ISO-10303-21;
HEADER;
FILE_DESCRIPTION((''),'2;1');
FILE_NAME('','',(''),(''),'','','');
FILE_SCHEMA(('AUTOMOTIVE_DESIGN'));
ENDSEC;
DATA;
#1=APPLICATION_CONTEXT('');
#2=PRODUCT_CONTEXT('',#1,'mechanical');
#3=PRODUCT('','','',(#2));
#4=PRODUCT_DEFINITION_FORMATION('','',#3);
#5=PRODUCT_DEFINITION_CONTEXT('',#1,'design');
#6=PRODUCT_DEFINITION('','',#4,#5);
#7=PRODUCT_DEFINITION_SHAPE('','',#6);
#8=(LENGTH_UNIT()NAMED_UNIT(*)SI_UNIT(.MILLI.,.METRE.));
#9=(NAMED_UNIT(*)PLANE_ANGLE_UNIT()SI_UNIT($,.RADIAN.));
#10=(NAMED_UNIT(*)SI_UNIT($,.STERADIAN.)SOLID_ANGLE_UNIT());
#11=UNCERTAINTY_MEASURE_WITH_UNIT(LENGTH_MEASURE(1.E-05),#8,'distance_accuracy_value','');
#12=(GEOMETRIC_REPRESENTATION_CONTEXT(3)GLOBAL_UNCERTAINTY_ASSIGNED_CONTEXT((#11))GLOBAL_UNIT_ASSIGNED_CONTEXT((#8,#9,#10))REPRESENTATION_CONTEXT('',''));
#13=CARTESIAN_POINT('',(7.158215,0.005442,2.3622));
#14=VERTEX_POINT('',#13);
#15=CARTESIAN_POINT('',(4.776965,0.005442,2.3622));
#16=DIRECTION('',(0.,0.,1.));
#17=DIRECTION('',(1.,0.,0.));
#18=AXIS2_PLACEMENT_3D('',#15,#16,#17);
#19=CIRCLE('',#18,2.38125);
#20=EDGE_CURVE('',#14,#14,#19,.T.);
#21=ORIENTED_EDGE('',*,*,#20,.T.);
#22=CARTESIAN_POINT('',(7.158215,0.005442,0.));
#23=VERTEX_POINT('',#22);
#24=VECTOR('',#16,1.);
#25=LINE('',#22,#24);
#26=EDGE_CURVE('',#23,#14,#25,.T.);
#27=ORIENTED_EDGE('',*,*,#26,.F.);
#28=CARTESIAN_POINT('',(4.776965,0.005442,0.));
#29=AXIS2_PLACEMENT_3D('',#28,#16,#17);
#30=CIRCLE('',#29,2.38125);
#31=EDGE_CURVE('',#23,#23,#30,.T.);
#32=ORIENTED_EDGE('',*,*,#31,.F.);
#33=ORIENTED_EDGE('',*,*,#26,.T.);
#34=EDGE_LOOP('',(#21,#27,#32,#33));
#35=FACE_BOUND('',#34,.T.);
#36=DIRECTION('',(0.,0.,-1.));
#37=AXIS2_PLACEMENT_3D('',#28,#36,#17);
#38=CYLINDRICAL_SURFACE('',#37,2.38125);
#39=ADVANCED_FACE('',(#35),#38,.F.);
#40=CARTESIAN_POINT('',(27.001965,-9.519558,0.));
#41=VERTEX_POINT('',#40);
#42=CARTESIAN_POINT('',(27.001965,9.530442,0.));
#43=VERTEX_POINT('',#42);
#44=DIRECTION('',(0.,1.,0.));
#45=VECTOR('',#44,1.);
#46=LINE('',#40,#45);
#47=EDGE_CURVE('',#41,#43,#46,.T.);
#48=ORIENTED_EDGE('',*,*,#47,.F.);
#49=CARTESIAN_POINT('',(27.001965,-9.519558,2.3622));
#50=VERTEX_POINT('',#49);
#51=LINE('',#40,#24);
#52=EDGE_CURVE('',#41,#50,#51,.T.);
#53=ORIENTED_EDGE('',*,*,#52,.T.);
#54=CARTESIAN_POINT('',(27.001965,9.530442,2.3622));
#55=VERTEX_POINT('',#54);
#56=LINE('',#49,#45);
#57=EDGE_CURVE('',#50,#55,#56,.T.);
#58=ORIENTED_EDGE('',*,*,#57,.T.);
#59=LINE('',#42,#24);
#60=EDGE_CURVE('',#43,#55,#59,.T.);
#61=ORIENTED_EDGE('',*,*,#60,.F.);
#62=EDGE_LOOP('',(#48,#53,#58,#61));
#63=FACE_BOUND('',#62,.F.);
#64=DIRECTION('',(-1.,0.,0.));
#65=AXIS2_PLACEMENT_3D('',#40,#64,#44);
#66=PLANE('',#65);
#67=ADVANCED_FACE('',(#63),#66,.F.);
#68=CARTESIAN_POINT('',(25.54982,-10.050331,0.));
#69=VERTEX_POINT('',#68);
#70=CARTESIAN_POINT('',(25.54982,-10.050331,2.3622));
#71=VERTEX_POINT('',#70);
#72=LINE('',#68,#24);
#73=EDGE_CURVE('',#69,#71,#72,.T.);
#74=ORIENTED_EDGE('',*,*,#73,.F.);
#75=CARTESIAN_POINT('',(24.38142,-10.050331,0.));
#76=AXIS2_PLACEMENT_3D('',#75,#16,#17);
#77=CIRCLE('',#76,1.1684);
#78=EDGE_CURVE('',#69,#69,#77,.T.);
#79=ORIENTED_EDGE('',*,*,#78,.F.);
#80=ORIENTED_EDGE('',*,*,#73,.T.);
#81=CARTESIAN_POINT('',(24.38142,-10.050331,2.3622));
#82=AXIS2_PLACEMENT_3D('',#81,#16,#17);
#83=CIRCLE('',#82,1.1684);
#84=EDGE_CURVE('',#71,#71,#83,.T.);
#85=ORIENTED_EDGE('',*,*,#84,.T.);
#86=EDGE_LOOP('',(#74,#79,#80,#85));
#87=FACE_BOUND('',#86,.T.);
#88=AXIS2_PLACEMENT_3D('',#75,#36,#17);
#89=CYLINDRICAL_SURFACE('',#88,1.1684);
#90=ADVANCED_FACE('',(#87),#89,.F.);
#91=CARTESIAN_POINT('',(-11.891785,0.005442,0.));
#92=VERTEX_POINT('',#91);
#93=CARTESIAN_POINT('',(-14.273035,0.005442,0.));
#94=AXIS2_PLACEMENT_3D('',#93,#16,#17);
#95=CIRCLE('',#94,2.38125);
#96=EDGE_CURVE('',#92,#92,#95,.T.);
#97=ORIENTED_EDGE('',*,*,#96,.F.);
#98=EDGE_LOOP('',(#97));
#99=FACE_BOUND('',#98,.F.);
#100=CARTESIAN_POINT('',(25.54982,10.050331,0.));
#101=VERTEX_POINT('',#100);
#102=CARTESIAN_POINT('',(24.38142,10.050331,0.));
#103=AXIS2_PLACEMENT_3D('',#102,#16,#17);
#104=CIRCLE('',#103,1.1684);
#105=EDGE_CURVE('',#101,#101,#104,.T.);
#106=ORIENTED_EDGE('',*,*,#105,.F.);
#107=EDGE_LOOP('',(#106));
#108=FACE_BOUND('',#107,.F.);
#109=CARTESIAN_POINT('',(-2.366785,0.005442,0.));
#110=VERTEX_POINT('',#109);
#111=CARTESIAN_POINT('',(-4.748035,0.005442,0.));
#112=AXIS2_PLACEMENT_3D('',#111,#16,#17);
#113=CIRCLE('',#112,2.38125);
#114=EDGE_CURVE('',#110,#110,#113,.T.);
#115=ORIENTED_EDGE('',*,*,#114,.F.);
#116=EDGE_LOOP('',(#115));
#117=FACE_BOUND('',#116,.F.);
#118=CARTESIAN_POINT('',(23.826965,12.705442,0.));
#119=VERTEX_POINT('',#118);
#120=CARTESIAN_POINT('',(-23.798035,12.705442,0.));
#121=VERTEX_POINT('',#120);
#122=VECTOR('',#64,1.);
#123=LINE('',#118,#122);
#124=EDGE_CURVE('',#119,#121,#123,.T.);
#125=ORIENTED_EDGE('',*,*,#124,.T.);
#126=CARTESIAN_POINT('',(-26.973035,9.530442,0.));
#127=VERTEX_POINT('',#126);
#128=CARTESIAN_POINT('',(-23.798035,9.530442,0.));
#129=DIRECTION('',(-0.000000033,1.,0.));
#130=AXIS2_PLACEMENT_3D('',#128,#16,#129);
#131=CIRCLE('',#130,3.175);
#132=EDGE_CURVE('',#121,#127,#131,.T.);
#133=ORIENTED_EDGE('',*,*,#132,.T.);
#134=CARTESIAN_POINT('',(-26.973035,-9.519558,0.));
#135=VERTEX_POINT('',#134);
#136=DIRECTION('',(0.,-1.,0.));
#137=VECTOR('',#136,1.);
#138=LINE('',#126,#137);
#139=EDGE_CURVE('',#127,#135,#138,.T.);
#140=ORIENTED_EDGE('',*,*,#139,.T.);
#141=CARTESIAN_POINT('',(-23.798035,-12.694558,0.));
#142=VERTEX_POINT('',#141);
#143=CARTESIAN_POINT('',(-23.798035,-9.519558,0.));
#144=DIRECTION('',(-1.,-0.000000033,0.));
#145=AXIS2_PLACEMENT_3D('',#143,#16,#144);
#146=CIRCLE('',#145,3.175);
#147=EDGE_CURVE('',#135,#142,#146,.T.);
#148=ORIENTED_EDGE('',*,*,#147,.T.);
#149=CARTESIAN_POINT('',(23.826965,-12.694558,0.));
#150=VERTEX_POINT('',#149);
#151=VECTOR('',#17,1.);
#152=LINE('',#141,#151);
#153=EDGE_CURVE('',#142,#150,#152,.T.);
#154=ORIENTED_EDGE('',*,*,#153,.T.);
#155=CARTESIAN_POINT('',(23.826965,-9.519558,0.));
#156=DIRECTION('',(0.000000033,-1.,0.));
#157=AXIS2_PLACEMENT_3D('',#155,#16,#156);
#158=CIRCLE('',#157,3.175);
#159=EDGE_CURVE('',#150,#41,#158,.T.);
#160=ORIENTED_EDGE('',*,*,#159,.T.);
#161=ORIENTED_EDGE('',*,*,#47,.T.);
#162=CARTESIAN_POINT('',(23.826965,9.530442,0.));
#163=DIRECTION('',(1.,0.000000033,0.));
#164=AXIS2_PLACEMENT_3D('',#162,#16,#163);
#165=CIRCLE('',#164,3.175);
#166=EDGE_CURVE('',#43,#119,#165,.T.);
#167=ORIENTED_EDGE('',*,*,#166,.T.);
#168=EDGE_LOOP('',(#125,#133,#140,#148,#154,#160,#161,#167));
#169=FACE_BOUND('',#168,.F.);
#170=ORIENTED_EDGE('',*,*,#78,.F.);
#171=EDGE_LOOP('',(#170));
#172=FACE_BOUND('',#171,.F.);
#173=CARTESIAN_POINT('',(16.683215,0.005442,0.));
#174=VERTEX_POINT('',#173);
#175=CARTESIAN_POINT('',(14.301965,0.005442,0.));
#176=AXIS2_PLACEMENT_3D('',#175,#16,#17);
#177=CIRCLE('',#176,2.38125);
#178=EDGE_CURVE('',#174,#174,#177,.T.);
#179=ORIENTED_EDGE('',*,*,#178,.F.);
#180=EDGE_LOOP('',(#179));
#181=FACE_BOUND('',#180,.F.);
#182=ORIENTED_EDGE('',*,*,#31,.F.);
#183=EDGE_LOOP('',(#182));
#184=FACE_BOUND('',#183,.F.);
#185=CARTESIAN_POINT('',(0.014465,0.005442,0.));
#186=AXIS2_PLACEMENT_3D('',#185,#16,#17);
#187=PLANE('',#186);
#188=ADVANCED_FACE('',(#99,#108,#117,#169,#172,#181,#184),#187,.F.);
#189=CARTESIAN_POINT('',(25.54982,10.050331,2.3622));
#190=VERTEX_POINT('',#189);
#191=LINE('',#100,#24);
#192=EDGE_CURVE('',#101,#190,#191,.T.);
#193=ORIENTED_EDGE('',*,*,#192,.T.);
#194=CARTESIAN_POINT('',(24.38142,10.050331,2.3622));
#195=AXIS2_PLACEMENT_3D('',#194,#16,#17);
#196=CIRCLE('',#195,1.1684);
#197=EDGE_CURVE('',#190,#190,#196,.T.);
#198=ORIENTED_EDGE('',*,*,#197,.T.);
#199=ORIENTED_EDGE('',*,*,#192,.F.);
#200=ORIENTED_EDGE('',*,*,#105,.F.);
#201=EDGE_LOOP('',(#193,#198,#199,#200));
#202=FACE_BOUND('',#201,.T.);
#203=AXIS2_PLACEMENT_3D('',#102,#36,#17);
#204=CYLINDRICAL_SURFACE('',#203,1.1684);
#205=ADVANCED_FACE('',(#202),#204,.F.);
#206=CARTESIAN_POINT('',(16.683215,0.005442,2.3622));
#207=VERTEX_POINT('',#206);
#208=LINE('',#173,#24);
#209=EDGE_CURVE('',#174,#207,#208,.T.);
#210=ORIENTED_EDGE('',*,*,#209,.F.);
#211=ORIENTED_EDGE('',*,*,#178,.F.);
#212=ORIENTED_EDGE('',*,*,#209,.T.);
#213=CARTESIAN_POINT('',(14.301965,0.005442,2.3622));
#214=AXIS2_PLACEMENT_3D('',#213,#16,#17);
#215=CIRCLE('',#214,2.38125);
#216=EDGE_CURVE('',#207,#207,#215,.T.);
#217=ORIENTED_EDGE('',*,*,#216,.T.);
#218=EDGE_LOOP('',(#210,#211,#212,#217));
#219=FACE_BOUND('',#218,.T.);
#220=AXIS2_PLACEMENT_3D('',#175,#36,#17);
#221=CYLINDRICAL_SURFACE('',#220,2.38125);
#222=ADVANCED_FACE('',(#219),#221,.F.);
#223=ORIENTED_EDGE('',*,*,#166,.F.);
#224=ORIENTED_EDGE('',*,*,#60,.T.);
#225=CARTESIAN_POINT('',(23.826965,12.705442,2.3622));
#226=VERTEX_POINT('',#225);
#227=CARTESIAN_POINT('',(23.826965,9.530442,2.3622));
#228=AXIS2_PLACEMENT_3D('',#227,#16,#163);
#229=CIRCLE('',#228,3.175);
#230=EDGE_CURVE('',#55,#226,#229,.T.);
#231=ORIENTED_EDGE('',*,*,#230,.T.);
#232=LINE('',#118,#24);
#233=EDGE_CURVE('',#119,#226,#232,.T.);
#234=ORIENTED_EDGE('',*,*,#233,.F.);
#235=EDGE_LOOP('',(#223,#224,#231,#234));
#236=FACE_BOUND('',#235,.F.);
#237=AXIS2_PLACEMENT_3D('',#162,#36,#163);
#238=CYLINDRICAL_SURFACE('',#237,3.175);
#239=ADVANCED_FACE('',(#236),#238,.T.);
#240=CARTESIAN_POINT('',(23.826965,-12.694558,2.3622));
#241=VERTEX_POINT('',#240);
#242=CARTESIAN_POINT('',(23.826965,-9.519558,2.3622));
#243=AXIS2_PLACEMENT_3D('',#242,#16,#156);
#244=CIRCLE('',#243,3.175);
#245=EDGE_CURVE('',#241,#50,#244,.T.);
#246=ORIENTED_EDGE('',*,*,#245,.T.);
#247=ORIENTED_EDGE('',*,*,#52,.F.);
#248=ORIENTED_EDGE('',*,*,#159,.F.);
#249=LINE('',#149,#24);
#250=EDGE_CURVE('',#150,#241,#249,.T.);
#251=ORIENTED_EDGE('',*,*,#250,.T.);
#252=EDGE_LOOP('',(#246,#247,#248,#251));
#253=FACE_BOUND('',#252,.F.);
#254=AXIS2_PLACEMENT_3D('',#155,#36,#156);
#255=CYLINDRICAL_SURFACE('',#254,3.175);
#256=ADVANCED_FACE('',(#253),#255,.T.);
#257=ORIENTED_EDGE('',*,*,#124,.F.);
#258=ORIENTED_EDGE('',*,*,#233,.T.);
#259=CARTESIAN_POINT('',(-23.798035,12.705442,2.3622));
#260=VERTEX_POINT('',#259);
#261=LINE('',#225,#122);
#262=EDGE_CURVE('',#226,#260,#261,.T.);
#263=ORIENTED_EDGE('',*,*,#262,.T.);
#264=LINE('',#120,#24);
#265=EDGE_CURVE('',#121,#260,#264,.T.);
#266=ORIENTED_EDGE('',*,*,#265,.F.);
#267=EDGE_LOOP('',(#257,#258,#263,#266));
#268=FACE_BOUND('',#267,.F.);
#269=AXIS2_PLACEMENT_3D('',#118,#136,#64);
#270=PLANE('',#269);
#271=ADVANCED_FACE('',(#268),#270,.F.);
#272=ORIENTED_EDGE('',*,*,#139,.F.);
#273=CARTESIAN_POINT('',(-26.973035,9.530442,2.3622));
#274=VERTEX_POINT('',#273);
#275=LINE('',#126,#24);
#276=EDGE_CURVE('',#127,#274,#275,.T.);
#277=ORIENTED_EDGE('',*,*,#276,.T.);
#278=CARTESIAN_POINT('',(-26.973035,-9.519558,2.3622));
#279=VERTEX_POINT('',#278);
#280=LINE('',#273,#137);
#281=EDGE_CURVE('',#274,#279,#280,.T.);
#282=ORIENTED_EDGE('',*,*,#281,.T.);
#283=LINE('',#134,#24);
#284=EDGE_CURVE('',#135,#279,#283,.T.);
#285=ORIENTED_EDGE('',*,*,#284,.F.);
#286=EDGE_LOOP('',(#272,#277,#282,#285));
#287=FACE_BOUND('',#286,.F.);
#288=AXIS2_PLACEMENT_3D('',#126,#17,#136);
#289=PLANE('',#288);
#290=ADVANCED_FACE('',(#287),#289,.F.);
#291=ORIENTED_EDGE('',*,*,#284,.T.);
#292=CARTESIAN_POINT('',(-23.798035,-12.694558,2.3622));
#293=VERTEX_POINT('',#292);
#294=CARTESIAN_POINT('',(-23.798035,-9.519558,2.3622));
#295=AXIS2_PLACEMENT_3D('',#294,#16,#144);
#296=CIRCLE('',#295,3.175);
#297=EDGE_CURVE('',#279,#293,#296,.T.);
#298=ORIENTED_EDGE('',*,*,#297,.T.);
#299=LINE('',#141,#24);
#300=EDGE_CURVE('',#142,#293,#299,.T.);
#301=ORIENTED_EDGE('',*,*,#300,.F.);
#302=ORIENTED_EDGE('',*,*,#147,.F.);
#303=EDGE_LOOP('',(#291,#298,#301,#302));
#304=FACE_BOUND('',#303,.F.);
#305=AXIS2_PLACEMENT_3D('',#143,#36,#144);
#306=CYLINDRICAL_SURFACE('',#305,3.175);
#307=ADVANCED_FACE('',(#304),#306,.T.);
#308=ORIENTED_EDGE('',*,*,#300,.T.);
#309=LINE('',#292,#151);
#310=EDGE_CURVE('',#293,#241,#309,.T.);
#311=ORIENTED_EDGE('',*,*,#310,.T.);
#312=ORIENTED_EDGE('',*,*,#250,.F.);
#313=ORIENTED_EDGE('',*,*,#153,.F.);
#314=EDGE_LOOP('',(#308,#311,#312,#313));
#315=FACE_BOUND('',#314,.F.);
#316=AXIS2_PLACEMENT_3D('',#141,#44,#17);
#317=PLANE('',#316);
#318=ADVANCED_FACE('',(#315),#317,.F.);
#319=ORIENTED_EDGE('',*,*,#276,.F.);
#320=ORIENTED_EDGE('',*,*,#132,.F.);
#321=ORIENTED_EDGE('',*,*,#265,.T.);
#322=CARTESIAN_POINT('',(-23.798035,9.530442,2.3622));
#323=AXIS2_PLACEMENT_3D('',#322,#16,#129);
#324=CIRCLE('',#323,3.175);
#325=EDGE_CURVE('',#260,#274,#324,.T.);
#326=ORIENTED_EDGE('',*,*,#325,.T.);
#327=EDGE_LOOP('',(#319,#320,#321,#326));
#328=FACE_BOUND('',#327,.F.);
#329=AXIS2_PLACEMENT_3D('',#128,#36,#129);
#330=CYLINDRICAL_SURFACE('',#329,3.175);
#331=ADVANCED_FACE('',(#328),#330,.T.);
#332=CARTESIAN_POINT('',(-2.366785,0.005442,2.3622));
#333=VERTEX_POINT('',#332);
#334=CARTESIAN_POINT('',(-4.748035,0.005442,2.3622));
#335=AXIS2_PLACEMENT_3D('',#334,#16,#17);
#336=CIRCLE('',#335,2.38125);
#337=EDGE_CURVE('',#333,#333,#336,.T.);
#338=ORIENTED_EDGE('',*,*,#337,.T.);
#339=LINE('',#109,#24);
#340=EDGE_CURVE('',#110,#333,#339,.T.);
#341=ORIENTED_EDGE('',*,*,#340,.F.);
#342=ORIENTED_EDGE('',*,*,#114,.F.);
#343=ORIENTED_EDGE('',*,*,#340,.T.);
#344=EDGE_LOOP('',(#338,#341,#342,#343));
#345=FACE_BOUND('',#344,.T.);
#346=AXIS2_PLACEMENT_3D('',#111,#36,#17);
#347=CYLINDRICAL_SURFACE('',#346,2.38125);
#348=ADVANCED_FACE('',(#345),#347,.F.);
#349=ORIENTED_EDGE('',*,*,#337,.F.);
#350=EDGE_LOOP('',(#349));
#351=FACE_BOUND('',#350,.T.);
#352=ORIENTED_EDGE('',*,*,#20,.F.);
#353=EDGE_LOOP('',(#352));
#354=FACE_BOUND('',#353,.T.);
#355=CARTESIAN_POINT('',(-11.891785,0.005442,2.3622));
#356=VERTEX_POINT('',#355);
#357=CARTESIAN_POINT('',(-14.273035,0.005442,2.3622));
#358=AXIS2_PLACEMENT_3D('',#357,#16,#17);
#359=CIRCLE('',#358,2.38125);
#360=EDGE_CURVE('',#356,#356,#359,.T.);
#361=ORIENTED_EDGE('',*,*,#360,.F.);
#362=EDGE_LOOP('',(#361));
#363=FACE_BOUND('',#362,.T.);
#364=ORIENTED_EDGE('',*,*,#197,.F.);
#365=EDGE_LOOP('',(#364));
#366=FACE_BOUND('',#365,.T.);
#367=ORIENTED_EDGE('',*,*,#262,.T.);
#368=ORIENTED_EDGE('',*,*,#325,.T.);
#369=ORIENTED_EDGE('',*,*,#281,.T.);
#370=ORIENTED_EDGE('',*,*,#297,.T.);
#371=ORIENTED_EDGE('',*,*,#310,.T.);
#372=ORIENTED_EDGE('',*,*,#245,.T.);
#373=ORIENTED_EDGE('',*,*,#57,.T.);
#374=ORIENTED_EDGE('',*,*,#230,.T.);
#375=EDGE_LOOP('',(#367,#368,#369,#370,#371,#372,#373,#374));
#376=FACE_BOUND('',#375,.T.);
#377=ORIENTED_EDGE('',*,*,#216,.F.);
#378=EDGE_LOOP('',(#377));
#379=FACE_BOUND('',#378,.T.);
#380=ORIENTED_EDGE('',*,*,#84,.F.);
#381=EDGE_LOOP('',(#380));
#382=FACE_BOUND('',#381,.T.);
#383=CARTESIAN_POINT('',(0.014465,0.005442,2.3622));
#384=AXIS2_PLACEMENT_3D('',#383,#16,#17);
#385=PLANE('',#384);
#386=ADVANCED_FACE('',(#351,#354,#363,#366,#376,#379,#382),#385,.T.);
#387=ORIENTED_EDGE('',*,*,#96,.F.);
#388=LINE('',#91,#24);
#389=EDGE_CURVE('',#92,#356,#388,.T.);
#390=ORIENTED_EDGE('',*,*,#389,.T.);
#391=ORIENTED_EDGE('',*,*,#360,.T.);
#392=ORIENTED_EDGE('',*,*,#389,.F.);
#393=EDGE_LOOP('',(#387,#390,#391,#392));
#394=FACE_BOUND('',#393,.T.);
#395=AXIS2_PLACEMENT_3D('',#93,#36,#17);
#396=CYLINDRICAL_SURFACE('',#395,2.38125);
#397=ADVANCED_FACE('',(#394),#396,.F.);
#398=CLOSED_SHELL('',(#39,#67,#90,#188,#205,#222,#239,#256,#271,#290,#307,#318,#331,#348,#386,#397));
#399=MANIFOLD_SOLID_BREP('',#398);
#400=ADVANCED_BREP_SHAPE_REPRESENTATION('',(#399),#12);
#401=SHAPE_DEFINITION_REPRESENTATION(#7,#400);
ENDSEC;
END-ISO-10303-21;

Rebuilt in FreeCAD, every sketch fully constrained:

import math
import FreeCAD as App
import Part
import Sketcher

V = App.Vector
Q = App.Units.Quantity

doc = App.newDocument("Part")
params = doc.addObject("Spreadsheet::Sheet", "Params")
for row, (alias, value) in enumerate([
    ("sketch1_diameter", "0.092 in"),
    ("sketch1_diameter2", "0.1875 in"),
    ("sketch1_radius", "0.125 in"),
    ("sketch1_height", "0.75 in"),
    ("pad1_length", "0.093 in"),
], start=1):
    params.set(f"A{row}", alias)
    params.set(f"B{row}", "=" + value)
    params.setAlias(f"B{row}", alias)

body = doc.addObject("PartDesign::Body", "Body")

# Sketch on XY plane
sketch1 = body.newObject("Sketcher::SketchObject", "Sketch")
sketch1.AttachmentSupport = (doc.getObject("XY_Plane"), [""])
sketch1.MapMode = "FlatFace"
sketch1.addGeometry([
    Part.ArcOfCircle(Part.Circle(V(23.8, 9.5, 0), V(0, 0, 1), 3.2), math.radians(0), math.radians(90)),  # 0
    Part.LineSegment(V(23.8, 12.7, 0), V(-23.8, 12.7, 0)),  # 1
    Part.ArcOfCircle(Part.Circle(V(-23.8, 9.5, 0), V(0, 0, 1), 3.2), math.radians(90), math.radians(180)),  # 2
    Part.LineSegment(V(-27, 9.5, 0), V(-27, -9.5, 0)),  # 3
    Part.ArcOfCircle(Part.Circle(V(-23.8, -9.5, 0), V(0, 0, 1), 3.2), math.radians(-180), math.radians(-90)),  # 4
    Part.LineSegment(V(-23.8, -12.7, 0), V(23.8, -12.7, 0)),  # 5
    Part.ArcOfCircle(Part.Circle(V(23.8, -9.5, 0), V(0, 0, 1), 3.2), math.radians(-90), math.radians(0)),  # 6
    Part.LineSegment(V(27, -9.5, 0), V(27, 9.5, 0)),  # 7
    Part.Circle(V(24.4, -10.1, 0), V(0, 0, 1), 1.2),  # 8
    Part.Circle(V(-14.3, 0, 0), V(0, 0, 1), 2.4),  # 9
    Part.Circle(V(-4.7, 0, 0), V(0, 0, 1), 2.4),  # 10
    Part.Circle(V(4.8, 0, 0), V(0, 0, 1), 2.4),  # 11
    Part.Circle(V(14.3, 0, 0), V(0, 0, 1), 2.4),  # 12
    Part.Circle(V(24.4, 10.1, 0), V(0, 0, 1), 1.2),  # 13
], False)
sketch1.addConstraint([
    Sketcher.Constraint("Tangent", 0, 2, 1, 1),
    Sketcher.Constraint("Tangent", 1, 2, 2, 1),
    Sketcher.Constraint("Tangent", 2, 2, 3, 1),
    Sketcher.Constraint("Tangent", 3, 2, 4, 1),
    Sketcher.Constraint("Tangent", 4, 2, 5, 1),
    Sketcher.Constraint("Tangent", 5, 2, 6, 1),
    Sketcher.Constraint("Tangent", 6, 2, 7, 1),
    Sketcher.Constraint("Tangent", 7, 2, 0, 1),
    Sketcher.Constraint("Horizontal", 1),
    Sketcher.Constraint("Vertical", 3),
    Sketcher.Constraint("Horizontal", 5),
    Sketcher.Constraint("Vertical", 7),
    Sketcher.Constraint("Equal", 0, 2),
    Sketcher.Constraint("Equal", 2, 4),
    Sketcher.Constraint("Equal", 4, 6),
    Sketcher.Constraint("Equal", 9, 10),
    Sketcher.Constraint("Equal", 10, 11),
    Sketcher.Constraint("Equal", 11, 12),
    Sketcher.Constraint("Equal", 8, 13),
    Sketcher.Constraint("Symmetric", 8, 3, 13, 3, -1),
    Sketcher.Constraint("Horizontal", 9, 3, 10, 3),
    Sketcher.Constraint("Horizontal", 10, 3, 11, 3),
    Sketcher.Constraint("Horizontal", 11, 3, 12, 3),
    Sketcher.Constraint("Diameter", 8, Q("0.092 in")),
    Sketcher.Constraint("Diameter", 9, Q("0.1875 in")),
    Sketcher.Constraint("Radius", 0, Q("0.125 in")),
    Sketcher.Constraint("DistanceY", 3, 2, 3, 1, Q("0.75 in")),
    Sketcher.Constraint("DistanceX", 9, 3, 0, 3, Q("1.5 in")),
    Sketcher.Constraint("DistanceY", 12, 3, 0, 2, Q("0.5 in")),
    Sketcher.Constraint("DistanceX", 2, 2, 9, 3, Q("0.5 in")),
    Sketcher.Constraint("DistanceX", 12, 3, 6, 2, Q("0.5 in")),
    Sketcher.Constraint("DistanceX", 2, 3, 10, 3, Q("0.75 in")),
    Sketcher.Constraint("DistanceX", 9, 3, 11, 3, Q("0.75 in")),
    Sketcher.Constraint("DistanceY", -1, 1, 0, 3, 9.530442),
    Sketcher.Constraint("DistanceX", -1, 1, 8, 3, 24.38142),
    Sketcher.Constraint("DistanceY", 8, 3, -1, 1, 10.050331),
    Sketcher.Constraint("DistanceX", -1, 1, 0, 3, 23.826965),
])
sketch1.setExpression("Constraints[23]", "Params.sketch1_diameter")
sketch1.setExpression("Constraints[24]", "Params.sketch1_diameter2")
sketch1.setExpression("Constraints[25]", "Params.sketch1_radius")
sketch1.setExpression("Constraints[26]", "Params.sketch1_height")
pad1 = body.newObject("PartDesign::Pad", "Pad")
pad1.Profile = sketch1
pad1.setExpression("Length", "Params.pad1_length")

doc.recompute()
